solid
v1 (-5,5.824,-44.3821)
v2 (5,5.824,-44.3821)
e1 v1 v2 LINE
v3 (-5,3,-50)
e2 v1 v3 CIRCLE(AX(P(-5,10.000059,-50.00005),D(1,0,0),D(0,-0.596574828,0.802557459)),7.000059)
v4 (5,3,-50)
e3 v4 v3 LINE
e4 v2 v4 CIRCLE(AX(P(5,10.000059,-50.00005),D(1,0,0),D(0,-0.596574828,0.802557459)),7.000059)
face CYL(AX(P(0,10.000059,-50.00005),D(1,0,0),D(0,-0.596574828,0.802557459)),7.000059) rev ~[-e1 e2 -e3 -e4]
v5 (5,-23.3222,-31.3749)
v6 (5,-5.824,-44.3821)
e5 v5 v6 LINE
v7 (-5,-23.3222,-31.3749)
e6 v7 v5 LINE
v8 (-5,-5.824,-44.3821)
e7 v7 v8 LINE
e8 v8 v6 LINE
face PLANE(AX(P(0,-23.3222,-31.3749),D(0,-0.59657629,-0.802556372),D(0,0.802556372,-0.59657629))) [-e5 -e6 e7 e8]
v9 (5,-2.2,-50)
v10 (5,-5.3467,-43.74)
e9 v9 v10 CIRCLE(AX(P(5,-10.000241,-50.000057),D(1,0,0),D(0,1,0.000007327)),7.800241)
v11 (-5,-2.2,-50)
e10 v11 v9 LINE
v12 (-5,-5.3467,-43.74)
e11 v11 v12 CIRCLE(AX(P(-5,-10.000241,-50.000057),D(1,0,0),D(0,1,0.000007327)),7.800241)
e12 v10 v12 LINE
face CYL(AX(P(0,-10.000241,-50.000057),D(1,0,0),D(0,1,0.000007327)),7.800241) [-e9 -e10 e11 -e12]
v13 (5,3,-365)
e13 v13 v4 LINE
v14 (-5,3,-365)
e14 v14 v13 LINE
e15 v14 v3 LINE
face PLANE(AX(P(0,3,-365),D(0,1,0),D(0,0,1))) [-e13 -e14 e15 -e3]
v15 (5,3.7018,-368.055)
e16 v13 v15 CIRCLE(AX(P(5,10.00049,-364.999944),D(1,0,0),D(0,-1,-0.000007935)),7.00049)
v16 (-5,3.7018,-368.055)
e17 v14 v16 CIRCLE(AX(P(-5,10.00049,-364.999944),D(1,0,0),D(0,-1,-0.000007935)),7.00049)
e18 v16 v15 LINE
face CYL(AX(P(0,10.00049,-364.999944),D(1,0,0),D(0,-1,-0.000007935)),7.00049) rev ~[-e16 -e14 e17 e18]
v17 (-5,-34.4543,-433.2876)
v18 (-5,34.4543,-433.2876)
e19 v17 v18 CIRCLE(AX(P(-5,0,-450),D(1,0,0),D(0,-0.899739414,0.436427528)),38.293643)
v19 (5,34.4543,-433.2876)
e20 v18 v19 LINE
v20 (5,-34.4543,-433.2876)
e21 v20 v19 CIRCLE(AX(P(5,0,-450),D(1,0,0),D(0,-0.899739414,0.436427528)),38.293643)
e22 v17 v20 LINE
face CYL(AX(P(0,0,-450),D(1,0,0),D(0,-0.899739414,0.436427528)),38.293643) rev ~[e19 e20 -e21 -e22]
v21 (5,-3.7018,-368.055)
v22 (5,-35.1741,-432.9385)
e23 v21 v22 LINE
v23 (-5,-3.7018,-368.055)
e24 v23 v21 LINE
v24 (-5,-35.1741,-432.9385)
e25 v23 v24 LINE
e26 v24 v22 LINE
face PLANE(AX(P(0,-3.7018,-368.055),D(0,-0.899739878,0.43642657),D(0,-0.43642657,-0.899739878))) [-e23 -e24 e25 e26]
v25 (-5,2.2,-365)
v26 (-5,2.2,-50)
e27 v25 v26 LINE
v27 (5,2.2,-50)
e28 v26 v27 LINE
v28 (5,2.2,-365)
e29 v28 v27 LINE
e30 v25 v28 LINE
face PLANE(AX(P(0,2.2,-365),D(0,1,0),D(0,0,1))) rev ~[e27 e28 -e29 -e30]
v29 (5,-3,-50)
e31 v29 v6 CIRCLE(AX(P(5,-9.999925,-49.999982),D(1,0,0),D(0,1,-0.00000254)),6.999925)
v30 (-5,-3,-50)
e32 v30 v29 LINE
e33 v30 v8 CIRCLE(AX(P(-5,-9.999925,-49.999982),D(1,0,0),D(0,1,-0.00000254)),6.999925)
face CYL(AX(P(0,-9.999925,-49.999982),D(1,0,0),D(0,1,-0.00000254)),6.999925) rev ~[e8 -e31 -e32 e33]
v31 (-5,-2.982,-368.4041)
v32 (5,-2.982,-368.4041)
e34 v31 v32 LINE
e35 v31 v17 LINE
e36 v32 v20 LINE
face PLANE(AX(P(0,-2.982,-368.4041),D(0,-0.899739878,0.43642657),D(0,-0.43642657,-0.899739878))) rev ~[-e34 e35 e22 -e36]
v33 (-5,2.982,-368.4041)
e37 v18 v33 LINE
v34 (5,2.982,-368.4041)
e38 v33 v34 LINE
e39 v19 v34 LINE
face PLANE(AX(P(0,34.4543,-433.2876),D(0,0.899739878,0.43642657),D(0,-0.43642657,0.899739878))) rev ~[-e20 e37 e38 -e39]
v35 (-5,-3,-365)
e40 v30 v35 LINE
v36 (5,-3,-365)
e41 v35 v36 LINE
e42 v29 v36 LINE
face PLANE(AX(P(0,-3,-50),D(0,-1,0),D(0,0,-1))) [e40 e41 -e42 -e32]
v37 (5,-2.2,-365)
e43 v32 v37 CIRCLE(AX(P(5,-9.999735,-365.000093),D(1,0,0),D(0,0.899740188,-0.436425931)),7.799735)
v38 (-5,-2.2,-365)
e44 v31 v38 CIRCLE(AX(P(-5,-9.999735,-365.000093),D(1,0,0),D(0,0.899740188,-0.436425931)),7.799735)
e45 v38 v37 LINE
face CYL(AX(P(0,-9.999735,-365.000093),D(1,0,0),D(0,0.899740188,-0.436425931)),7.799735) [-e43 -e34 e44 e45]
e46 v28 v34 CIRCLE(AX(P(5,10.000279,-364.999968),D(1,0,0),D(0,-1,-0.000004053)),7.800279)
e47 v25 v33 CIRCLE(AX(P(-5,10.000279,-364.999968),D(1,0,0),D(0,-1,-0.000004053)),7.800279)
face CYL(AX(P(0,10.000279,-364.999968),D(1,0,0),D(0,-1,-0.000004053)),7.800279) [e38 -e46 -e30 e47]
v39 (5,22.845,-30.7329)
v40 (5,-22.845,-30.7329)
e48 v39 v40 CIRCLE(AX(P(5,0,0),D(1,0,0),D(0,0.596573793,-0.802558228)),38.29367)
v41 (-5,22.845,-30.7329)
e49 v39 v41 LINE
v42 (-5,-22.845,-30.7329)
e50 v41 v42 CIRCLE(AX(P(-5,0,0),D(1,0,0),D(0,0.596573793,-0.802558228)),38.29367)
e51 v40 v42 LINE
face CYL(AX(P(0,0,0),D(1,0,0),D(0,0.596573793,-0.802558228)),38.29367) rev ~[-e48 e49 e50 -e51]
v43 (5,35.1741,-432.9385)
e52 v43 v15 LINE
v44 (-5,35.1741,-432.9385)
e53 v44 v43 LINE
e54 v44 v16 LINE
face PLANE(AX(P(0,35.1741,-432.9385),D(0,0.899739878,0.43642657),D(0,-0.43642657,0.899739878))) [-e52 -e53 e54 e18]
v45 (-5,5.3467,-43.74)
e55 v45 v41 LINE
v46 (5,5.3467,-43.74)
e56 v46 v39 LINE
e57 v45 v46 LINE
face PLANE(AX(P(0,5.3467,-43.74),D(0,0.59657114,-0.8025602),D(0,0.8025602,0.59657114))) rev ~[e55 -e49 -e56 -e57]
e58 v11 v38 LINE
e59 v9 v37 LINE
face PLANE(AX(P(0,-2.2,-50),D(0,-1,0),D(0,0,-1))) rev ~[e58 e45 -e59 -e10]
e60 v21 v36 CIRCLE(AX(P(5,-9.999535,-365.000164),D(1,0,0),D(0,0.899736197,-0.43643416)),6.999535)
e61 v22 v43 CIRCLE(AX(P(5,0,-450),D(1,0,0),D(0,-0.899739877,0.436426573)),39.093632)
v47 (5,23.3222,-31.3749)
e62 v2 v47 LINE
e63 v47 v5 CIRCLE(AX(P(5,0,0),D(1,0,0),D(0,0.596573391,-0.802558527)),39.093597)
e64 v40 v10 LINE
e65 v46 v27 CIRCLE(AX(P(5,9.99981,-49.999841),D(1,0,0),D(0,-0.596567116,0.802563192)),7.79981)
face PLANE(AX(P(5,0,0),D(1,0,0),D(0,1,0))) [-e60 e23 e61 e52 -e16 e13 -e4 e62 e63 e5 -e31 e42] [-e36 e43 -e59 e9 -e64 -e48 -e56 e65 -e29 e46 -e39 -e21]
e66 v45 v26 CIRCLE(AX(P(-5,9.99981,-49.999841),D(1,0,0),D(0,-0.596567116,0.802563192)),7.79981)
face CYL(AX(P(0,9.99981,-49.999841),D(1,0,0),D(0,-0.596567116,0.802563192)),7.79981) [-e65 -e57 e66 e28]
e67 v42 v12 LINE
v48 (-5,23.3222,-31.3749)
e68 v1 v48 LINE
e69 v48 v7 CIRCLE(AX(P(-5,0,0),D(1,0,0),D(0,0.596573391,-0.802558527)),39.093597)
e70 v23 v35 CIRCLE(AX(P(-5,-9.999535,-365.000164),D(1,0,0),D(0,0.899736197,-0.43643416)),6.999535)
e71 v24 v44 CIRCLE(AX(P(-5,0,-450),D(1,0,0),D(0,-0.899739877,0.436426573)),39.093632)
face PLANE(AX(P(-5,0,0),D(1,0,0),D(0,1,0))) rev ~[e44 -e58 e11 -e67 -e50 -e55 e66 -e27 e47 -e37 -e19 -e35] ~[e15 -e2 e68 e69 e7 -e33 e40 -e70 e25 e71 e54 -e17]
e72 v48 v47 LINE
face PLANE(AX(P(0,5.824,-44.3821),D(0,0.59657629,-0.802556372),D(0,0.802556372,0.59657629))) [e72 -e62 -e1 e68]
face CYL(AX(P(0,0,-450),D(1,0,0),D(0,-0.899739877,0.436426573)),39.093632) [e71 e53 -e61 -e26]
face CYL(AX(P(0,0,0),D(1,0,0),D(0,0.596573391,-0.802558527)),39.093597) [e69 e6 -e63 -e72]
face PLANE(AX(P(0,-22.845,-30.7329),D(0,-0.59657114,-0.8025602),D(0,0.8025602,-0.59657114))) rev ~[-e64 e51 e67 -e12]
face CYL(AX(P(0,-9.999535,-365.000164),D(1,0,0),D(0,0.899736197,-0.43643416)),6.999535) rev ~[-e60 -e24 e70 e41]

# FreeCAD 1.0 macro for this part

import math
import FreeCAD as App
import Part
import Sketcher

V = App.Vector
Q = App.Units.Quantity

doc = App.newDocument("Part")
body = doc.addObject("PartDesign::Body", "Body")

# Sketch on YZ plane
sketch1 = body.newObject("Sketcher::SketchObject", "Sketch")
sketch1.AttachmentSupport = (doc.getObject("YZ_Plane"), [""])
sketch1.MapMode = "FlatFace"
sketch1.addGeometry([
    Part.ArcOfCircle(Part.Circle(V(10, -50, 0), V(0, 0, 1), 7), math.radians(127), math.radians(180)),  # 0
    Part.LineSegment(V(5.8, -44.4, 0), V(23.3, -31.4, 0)),  # 1
    Part.ArcOfCircle(Part.Circle(V(0, 0, 0), V(0, 0, 1), 39.1), math.radians(-53), math.radians(233)),  # 2
    Part.LineSegment(V(-23.3, -31.4, 0), V(-5.8, -44.4, 0)),  # 3
    Part.ArcOfCircle(Part.Circle(V(-10, -50, 0), V(0, 0, 1), 7), math.radians(0), math.radians(53)),  # 4
    Part.LineSegment(V(-3, -50, 0), V(-3, -365, 0)),  # 5
    Part.ArcOfCircle(Part.Circle(V(-10, -365, 0), V(0, 0, 1), 7), math.radians(-26), math.radians(0)),  # 6
    Part.LineSegment(V(-3.7, -368.1, 0), V(-35.2, -432.9, 0)),  # 7
    Part.ArcOfCircle(Part.Circle(V(0, -450, 0), V(0, 0, 1), 39.1), math.radians(154), math.radians(386)),  # 8
    Part.LineSegment(V(35.2, -432.9, 0), V(3.7, -368.1, 0)),  # 9
    Part.ArcOfCircle(Part.Circle(V(10, -365, 0), V(0, 0, 1), 7), math.radians(180), math.radians(206)),  # 10
    Part.LineSegment(V(3, -365, 0), V(3, -50, 0)),  # 11
    Part.LineSegment(V(22.8, -30.7, 0), V(5.3, -43.7, 0)),  # 12
    Part.ArcOfCircle(Part.Circle(V(10, -50, 0), V(0, 0, 1), 7.8), math.radians(127), math.radians(180)),  # 13
    Part.LineSegment(V(2.2, -50, 0), V(2.2, -365, 0)),  # 14
    Part.ArcOfCircle(Part.Circle(V(10, -365, 0), V(0, 0, 1), 7.8), math.radians(180), math.radians(206)),  # 15
    Part.LineSegment(V(3, -368.4, 0), V(34.5, -433.3, 0)),  # 16
    Part.ArcOfCircle(Part.Circle(V(0, -450, 0), V(0, 0, 1), 38.3), math.radians(154), math.radians(386)),  # 17
    Part.LineSegment(V(-34.5, -433.3, 0), V(-3, -368.4, 0)),  # 18
    Part.ArcOfCircle(Part.Circle(V(-10, -365, 0), V(0, 0, 1), 7.8), math.radians(-26), math.radians(0)),  # 19
    Part.LineSegment(V(-2.2, -365, 0), V(-2.2, -50, 0)),  # 20
    Part.ArcOfCircle(Part.Circle(V(-10, -50, 0), V(0, 0, 1), 7.8), math.radians(0), math.radians(53)),  # 21
    Part.LineSegment(V(-5.3, -43.7, 0), V(-22.8, -30.7, 0)),  # 22
    Part.ArcOfCircle(Part.Circle(V(0, 0, 0), V(0, 0, 1), 38.3), math.radians(-53), math.radians(233)),  # 23
], False)
sketch1.addConstraint([
    Sketcher.Constraint("Tangent", 0, 1, 1, 1),
    Sketcher.Constraint("Tangent", 1, 2, 2, 1),
    Sketcher.Constraint("Tangent", 2, 2, 3, 1),
    Sketcher.Constraint("Tangent", 3, 2, 4, 2),
    Sketcher.Constraint("Tangent", 4, 1, 5, 1),
    Sketcher.Constraint("Tangent", 5, 2, 6, 2),
    Sketcher.Constraint("Tangent", 6, 1, 7, 1),
    Sketcher.Constraint("Tangent", 7, 2, 8, 1),
    Sketcher.Constraint("Tangent", 8, 2, 9, 1),
    Sketcher.Constraint("Tangent", 9, 2, 10, 2),
    Sketcher.Constraint("Tangent", 10, 1, 11, 1),
    Sketcher.Constraint("Tangent", 11, 2, 0, 2),
    Sketcher.Constraint("Tangent", 12, 2, 13, 1),
    Sketcher.Constraint("Tangent", 13, 2, 14, 1),
    Sketcher.Constraint("Tangent", 14, 2, 15, 1),
    Sketcher.Constraint("Tangent", 15, 2, 16, 1),
    Sketcher.Constraint("Tangent", 16, 2, 17, 2),
    Sketcher.Constraint("Tangent", 17, 1, 18, 1),
    Sketcher.Constraint("Tangent", 18, 2, 19, 1),
    Sketcher.Constraint("Tangent", 19, 2, 20, 1),
    Sketcher.Constraint("Tangent", 20, 2, 21, 1),
    Sketcher.Constraint("Tangent", 21, 2, 22, 1),
    Sketcher.Constraint("Tangent", 22, 2, 23, 2),
    Sketcher.Constraint("Tangent", 23, 1, 12, 1),
    Sketcher.Constraint("Vertical", 5),
    Sketcher.Constraint("Vertical", 11),
    Sketcher.Constraint("Vertical", 14),
    Sketcher.Constraint("Vertical", 20),
    Sketcher.Constraint("Coincident", 2, 3, -1, 1),
    Sketcher.Constraint("Coincident", 23, 3, -1, 1),
    Sketcher.Constraint("Coincident", 13, 3, 0, 3),
    Sketcher.Constraint("Coincident", 15, 3, 10, 3),
    Sketcher.Constraint("Coincident", 17, 3, 8, 3),
    Sketcher.Constraint("Coincident", 19, 3, 6, 3),
    Sketcher.Constraint("Coincident", 21, 3, 4, 3),
    Sketcher.Constraint("Equal", 0, 4),
    Sketcher.Constraint("Equal", 4, 6),
    Sketcher.Constraint("Equal", 2, 8),
    Sketcher.Constraint("Equal", 6, 10),
    Sketcher.Constraint("Equal", 15, 19),
    Sketcher.Constraint("Equal", 17, 23),
    Sketcher.Constraint("Symmetric", 0, 3, 4, 3, -2),
    Sketcher.Constraint("Symmetric", 7, 2, 8, 2, -2),
    Sketcher.Constraint("Parallel", 1, 12),
    Sketcher.Constraint("Radius", 0, Q("7 mm")),
    Sketcher.Constraint("DistanceX", -1, 1, 0, 3, Q("10 mm")),
    Sketcher.Constraint("DistanceY", 0, 3, -1, 1, Q("50 mm")),
    Sketcher.Constraint("DistanceY", 8, 3, -1, 1, Q("450 mm")),
    Sketcher.Constraint("DistanceY", 8, 3, 6, 3, Q("85 mm")),
    Sketcher.Constraint("Radius", 13, Q("7.8 mm")),
    Sketcher.Constraint("Radius", 2, Q("39.0936 mm")),
])
pad1 = body.newObject("PartDesign::Pad", "Pad")
pad1.Profile = sketch1
pad1.Length = 10
pad1.Midplane = True

doc.recompute()
